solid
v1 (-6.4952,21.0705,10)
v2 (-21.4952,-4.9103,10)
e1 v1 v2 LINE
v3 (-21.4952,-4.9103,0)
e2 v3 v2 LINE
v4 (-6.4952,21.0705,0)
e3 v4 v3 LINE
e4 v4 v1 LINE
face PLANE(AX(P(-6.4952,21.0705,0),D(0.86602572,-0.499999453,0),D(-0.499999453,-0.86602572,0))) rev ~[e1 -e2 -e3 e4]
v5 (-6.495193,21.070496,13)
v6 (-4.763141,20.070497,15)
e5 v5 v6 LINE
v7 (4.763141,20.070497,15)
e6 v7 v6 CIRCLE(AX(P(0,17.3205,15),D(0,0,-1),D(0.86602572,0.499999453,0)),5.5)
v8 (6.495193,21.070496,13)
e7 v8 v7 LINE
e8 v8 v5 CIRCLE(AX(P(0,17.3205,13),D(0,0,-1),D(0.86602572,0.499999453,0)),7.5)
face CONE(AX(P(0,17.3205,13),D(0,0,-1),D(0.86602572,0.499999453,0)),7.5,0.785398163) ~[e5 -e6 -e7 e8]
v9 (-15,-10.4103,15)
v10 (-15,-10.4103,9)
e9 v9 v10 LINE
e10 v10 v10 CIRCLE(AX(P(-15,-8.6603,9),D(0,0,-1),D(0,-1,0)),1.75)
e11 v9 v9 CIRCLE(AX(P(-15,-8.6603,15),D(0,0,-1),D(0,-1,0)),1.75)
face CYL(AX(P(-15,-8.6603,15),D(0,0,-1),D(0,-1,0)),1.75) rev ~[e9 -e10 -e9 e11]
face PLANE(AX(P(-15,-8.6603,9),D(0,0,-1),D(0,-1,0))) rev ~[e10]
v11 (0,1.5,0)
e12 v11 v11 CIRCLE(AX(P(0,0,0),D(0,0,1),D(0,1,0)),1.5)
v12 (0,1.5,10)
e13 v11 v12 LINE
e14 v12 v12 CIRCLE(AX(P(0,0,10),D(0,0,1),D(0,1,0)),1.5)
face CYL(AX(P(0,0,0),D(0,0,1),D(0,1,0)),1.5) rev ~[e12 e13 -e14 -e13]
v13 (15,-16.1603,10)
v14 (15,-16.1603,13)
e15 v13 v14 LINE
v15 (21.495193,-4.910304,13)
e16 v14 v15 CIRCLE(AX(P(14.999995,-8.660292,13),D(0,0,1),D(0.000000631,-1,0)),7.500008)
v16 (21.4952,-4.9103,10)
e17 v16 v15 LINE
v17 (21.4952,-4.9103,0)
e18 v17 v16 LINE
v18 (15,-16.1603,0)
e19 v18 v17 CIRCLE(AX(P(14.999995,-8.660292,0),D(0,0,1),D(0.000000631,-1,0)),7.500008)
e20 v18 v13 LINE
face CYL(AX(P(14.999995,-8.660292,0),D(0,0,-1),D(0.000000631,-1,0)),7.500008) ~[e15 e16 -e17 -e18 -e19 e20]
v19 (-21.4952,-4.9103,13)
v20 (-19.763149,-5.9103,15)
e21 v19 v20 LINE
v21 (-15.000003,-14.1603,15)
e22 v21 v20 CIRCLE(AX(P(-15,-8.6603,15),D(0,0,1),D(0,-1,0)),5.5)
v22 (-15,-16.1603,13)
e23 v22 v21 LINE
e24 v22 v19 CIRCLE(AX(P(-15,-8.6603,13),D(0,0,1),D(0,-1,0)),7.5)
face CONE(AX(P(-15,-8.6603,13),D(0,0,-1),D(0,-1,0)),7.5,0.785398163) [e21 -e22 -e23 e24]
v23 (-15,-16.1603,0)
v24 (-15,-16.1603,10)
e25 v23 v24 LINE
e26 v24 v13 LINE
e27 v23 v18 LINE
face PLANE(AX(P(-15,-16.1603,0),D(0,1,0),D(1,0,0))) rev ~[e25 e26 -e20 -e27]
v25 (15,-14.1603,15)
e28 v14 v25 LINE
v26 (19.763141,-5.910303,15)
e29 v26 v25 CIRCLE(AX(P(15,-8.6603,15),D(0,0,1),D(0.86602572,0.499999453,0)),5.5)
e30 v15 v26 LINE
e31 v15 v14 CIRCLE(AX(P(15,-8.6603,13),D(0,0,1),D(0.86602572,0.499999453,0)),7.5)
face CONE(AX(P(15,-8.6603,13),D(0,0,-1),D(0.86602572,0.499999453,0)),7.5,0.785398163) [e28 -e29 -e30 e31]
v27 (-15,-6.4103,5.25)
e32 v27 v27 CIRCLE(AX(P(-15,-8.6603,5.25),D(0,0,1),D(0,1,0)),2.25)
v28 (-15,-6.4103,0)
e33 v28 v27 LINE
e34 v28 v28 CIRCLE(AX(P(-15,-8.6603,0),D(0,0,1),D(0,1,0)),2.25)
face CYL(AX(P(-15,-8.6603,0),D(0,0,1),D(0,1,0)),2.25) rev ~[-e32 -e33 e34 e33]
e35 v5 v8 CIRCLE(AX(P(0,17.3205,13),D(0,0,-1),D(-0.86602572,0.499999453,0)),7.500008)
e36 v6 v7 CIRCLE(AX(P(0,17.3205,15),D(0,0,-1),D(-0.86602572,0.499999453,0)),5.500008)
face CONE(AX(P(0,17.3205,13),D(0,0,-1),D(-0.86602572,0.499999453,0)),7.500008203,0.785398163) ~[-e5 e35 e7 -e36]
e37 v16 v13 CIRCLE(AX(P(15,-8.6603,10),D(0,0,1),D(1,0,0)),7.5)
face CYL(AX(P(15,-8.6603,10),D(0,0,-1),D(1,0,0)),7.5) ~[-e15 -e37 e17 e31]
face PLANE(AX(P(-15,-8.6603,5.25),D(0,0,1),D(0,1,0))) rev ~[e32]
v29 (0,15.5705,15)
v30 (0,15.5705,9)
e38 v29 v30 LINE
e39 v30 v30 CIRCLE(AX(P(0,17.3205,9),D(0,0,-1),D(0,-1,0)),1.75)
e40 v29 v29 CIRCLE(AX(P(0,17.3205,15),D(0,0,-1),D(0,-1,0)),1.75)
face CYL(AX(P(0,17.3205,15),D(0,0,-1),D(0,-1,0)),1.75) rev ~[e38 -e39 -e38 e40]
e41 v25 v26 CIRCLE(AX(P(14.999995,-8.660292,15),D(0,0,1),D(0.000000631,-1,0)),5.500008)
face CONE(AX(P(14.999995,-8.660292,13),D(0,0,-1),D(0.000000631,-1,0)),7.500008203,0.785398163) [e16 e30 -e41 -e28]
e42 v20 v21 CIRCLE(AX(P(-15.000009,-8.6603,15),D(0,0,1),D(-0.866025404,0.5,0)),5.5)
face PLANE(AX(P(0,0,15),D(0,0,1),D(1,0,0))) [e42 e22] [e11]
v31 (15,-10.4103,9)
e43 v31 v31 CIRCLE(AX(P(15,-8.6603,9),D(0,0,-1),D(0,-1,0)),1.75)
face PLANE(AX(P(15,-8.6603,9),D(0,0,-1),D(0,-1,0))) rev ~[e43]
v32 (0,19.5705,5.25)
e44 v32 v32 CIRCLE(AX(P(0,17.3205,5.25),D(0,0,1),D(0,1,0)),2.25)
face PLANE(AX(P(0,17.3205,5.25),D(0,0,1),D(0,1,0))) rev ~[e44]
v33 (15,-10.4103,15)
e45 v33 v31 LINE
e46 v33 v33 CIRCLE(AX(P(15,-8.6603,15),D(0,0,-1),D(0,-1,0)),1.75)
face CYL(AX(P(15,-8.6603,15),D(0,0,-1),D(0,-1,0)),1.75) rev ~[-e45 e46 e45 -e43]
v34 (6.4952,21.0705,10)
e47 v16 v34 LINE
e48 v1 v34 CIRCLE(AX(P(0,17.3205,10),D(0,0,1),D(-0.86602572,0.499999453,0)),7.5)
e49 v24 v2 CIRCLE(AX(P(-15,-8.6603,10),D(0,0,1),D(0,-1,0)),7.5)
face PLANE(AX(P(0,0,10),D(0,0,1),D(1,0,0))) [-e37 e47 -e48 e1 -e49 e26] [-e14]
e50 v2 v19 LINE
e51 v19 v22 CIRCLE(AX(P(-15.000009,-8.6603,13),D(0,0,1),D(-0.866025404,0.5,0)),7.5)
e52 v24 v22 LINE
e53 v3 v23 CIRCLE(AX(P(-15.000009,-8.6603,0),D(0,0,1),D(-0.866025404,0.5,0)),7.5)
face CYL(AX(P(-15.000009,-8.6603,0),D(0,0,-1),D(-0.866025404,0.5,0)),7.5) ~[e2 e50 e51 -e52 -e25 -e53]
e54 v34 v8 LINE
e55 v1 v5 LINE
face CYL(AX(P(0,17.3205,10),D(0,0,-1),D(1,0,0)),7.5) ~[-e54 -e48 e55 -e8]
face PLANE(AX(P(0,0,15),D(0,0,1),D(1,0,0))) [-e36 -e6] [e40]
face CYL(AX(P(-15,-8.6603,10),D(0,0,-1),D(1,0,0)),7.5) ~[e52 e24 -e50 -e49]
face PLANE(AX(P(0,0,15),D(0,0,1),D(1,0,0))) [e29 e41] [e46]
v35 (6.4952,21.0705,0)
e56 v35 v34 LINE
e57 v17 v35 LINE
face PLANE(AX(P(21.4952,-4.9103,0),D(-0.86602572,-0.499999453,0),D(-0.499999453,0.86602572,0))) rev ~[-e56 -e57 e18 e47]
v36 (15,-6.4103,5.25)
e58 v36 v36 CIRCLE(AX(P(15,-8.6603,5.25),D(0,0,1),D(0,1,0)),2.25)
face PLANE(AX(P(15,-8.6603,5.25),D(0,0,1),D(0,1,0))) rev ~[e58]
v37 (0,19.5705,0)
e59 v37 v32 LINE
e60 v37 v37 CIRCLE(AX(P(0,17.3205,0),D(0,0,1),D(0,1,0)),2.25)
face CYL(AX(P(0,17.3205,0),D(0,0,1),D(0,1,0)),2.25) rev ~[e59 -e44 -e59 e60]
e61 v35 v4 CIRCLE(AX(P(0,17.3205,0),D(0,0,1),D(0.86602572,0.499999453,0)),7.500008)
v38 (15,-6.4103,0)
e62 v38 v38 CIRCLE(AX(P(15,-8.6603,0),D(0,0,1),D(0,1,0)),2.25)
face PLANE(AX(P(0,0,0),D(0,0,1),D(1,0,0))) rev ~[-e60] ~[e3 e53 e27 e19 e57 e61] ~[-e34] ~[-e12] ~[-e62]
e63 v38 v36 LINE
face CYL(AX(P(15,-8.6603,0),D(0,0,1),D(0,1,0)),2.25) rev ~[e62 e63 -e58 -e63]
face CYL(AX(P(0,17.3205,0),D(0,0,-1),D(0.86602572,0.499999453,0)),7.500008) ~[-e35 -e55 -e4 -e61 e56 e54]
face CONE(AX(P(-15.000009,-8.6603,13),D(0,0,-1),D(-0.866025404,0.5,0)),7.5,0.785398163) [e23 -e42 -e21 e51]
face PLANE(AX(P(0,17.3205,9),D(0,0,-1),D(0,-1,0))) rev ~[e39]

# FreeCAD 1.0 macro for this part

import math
import FreeCAD as App
import Part
import Sketcher

V = App.Vector
Q = App.Units.Quantity


def edges_at(feature, points):
    """Names of the edges that pass closest to the given points."""
    edges = feature.Shape.Edges
    near = lambda p: min(range(len(edges)), key=lambda i: edges[i].distToShape(Part.Vertex(*p))[0])
    return sorted({f"Edge{near(p) + 1}" for p in points})

doc = App.newDocument("Part")
body = doc.addObject("PartDesign::Body", "Body")

# Sketch on XY plane
sketch1 = body.newObject("Sketcher::SketchObject", "Sketch")
sketch1.AttachmentSupport = (doc.getObject("XY_Plane"), [""])
sketch1.MapMode = "FlatFace"
sketch1.addGeometry(Part.ArcOfCircle(Part.Circle(V(-15, -8.6603, 0), V(0, 0, 1), 7.500008), math.radians(150.000036), math.radians(270)), False)
sketch1.addGeometry(Part.LineSegment(V(-15, -16.1603, 0), V(15, -16.1603, 0)), False)
sketch1.addGeometry(Part.ArcOfCircle(Part.Circle(V(15, -8.6603, 0), V(0, 0, 1), 7.5), math.radians(-90), math.radians(29.999964)), False)
sketch1.addGeometry(Part.LineSegment(V(21.4952, -4.9103, 0), V(6.4952, 21.0705, 0)), False)
sketch1.addGeometry(Part.ArcOfCircle(Part.Circle(V(0, 17.3205, 0), V(0, 0, 1), 7.500008), math.radians(29.999964), math.radians(150.000036)), False)
sketch1.addGeometry(Part.LineSegment(V(-6.4952, 21.0705, 0), V(-21.4952, -4.9103, 0)), False)
sketch1.addConstraint(Sketcher.Constraint("Tangent", 0, 2, 1, 1))
sketch1.addConstraint(Sketcher.Constraint("Tangent", 1, 2, 2, 1))
sketch1.addConstraint(Sketcher.Constraint("Tangent", 2, 2, 3, 1))
sketch1.addConstraint(Sketcher.Constraint("Tangent", 3, 2, 4, 1))
sketch1.addConstraint(Sketcher.Constraint("Tangent", 4, 2, 5, 1))
sketch1.addConstraint(Sketcher.Constraint("Tangent", 5, 2, 0, 1))
sketch1.addConstraint(Sketcher.Constraint("Horizontal", 1))
sketch1.addConstraint(Sketcher.Constraint("Equal", 0, 2))
sketch1.addConstraint(Sketcher.Constraint("Equal", 2, 4))
sketch1.addConstraint(Sketcher.Constraint("Symmetric", 3, 2, 4, 2, -2))
sketch1.addConstraint(Sketcher.Constraint("Radius", 0, 7.5))
sketch1.addConstraint(Sketcher.Constraint("DistanceX", 1, 1, 1, 2, 30.0))
sketch1.addConstraint(Sketcher.Constraint("Angle", 3, Q("120 deg")))
sketch1.addConstraint(Sketcher.Constraint("DistanceY", 0, 3, -1, 1, 8.6603))
pad1 = body.newObject("PartDesign::Pad", "Pad")
pad1.Profile = sketch1
pad1.Length = 10

# Sketch on XY plane
sketch2 = body.newObject("Sketcher::SketchObject", "Sketch001")
sketch2.AttachmentSupport = (doc.getObject("XY_Plane"), [""])
sketch2.MapMode = "FlatFace"
sketch2.addGeometry(Part.Circle(V(0, 17.3205, 0), V(0, 0, 1), 2.25), False)
sketch2.addGeometry(Part.Circle(V(15, -8.6603, 0), V(0, 0, 1), 2.25), False)
sketch2.addGeometry(Part.Circle(V(-15, -8.6603, 0), V(0, 0, 1), 2.25), False)
sketch2.addConstraint(Sketcher.Constraint("Equal", 0, 1))
sketch2.addConstraint(Sketcher.Constraint("Equal", 1, 2))
sketch2.addConstraint(Sketcher.Constraint("Symmetric", 1, 3, 2, 3, -2))
sketch2.addConstraint(Sketcher.Constraint("PointOnObject", 0, 3, -2))
sketch2.addConstraint(Sketcher.Constraint("Diameter", 0, 4.5))
sketch2.addConstraint(Sketcher.Constraint("DistanceX", -1, 1, 1, 3, 15.0))
sketch2.addConstraint(Sketcher.Constraint("DistanceY", -1, 1, 0, 3, 17.3205))
sketch2.addConstraint(Sketcher.Constraint("DistanceY", 1, 3, -1, 1, 8.6603))
doc.recompute()
hole = body.newObject("PartDesign::Hole", "Hole")
hole.Profile = sketch2
hole.ThreadType = "None"
hole.Diameter = 4.5
hole.DepthType = "Dimension"
hole.Depth = 5.25
hole.DrillPoint = "Flat"
hole.Reversed = True

# Sketch on XY plane
sketch3 = body.newObject("Sketcher::SketchObject", "Sketch002")
sketch3.AttachmentSupport = (doc.getObject("XY_Plane"), [""])
sketch3.MapMode = "FlatFace"
sketch3.addGeometry(Part.Circle(V(0, 0, 0), V(0, 0, 1), 1.5), False)
sketch3.addConstraint(Sketcher.Constraint("Coincident", 0, 3, -1, 1))
sketch3.addConstraint(Sketcher.Constraint("Diameter", 0, 3.0))
doc.recompute()
hole2 = body.newObject("PartDesign::Hole", "Hole001")
hole2.Profile = sketch3
hole2.ThreadType = "None"
hole2.Diameter = 3
hole2.DepthType = "ThroughAll"
hole2.Reversed = True

# Sketch on XY plane
sketch4 = body.newObject("Sketcher::SketchObject", "Sketch003")
sketch4.AttachmentSupport = (doc.getObject("XY_Plane"), [""])
sketch4.MapMode = "FlatFace"
sketch4.AttachmentOffset = App.Placement(V(0, 0, 10), App.Rotation())
sketch4.addGeometry(Part.ArcOfCircle(Part.Circle(V(15, -8.6603, 0), V(0, 0, 1), 7.5), math.radians(29.999964), math.radians(270)), False)
sketch4.addGeometry(Part.ArcOfCircle(Part.Circle(V(15, -8.6603, 0), V(0, 0, 1), 7.5), math.radians(-90), math.radians(29.999964)), False)
sketch4.addGeometry(Part.Circle(V(0, 17.3205, 0), V(0, 0, 1), 7.500008), False)
sketch4.addGeometry(Part.ArcOfCircle(Part.Circle(V(-15, -8.6603, 0), V(0, 0, 1), 7.5), math.radians(-90), math.radians(150.000036)), False)
sketch4.addGeometry(Part.ArcOfCircle(Part.Circle(V(-15, -8.6603, 0), V(0, 0, 1), 7.5), math.radians(150.000036), math.radians(270)), False)
sketch4.addConstraint(Sketcher.Constraint("Tangent", 0, 1, 1, 2))
sketch4.addConstraint(Sketcher.Constraint("Coincident", 1, 1, 0, 2))
sketch4.addConstraint(Sketcher.Constraint("Tangent", 3, 1, 4, 2))
sketch4.addConstraint(Sketcher.Constraint("Coincident", 4, 1, 3, 2))
sketch4.addConstraint(Sketcher.Constraint("Equal", 1, 2))
sketch4.addConstraint(Sketcher.Constraint("Equal", 2, 3))
sketch4.addConstraint(Sketcher.Constraint("Symmetric", 0, 3, 3, 3, -2))
sketch4.addConstraint(Sketcher.Constraint("PointOnObject", 2, 3, -2))
sketch4.addConstraint(Sketcher.Constraint("Horizontal", 0, 1, 4, 1))
sketch4.addConstraint(Sketcher.Constraint("Vertical", 0, 3, 1, 1))
sketch4.addConstraint(Sketcher.Constraint("Vertical", 4, 3, 3, 1))
sketch4.addConstraint(Sketcher.Constraint("Diameter", 2, 15.0))
sketch4.addConstraint(Sketcher.Constraint("DistanceX", -1, 1, 0, 3, 15.0))
sketch4.addConstraint(Sketcher.Constraint("DistanceY", 0, 3, 0, 1, 3.75))
sketch4.addConstraint(Sketcher.Constraint("DistanceY", 0, 3, -1, 1, 8.6603))
sketch4.addConstraint(Sketcher.Constraint("DistanceY", -1, 1, 2, 3, 17.3205))
pad2 = body.newObject("PartDesign::Pad", "Pad001")
pad2.Profile = sketch4
pad2.Length = 5
doc.recompute()

chamfer = body.newObject("PartDesign::Chamfer", "Chamfer")
chamfer.Base = (pad2, edges_at(pad2, [(-22.5, -8.66, 15), (-7.5, 17.32, 15), (7.5, -8.66, 15)]))
chamfer.Size = 2

# Sketch on XY plane
sketch5 = body.newObject("Sketcher::SketchObject", "Sketch004")
sketch5.AttachmentSupport = (doc.getObject("XY_Plane"), [""])
sketch5.MapMode = "FlatFace"
sketch5.AttachmentOffset = App.Placement(V(0, 0, 15), App.Rotation())
sketch5.addGeometry(Part.Circle(V(0, 17.3205, 0), V(0, 0, 1), 1.75), False)
sketch5.addConstraint(Sketcher.Constraint("PointOnObject", 0, 3, -2))
sketch5.addConstraint(Sketcher.Constraint("Diameter", 0, 3.5))
sketch5.addConstraint(Sketcher.Constraint("DistanceY", -1, 1, 0, 3, 17.3205))
doc.recompute()
hole3 = body.newObject("PartDesign::Hole", "Hole002")
hole3.Profile = sketch5
hole3.ThreadType = "None"
hole3.Diameter = 3.5
hole3.DepthType = "Dimension"
hole3.Depth = 6
hole3.DrillPoint = "Flat"

# Sketch on XY plane
sketch6 = body.newObject("Sketcher::SketchObject", "Sketch005")
sketch6.AttachmentSupport = (doc.getObject("XY_Plane"), [""])
sketch6.MapMode = "FlatFace"
sketch6.AttachmentOffset = App.Placement(V(0, 0, 15), App.Rotation())
sketch6.addGeometry(Part.Circle(V(15, -8.6603, 0), V(0, 0, 1), 1.75), False)
sketch6.addConstraint(Sketcher.Constraint("Diameter", 0, 3.5))
sketch6.addConstraint(Sketcher.Constraint("DistanceX", -1, 1, 0, 3, 15.0))
sketch6.addConstraint(Sketcher.Constraint("DistanceY", 0, 3, -1, 1, 8.6603))
doc.recompute()
hole4 = body.newObject("PartDesign::Hole", "Hole003")
hole4.Profile = sketch6
hole4.ThreadType = "None"
hole4.Diameter = 3.5
hole4.DepthType = "Dimension"
hole4.Depth = 6
hole4.DrillPoint = "Flat"

# Sketch on XY plane
sketch7 = body.newObject("Sketcher::SketchObject", "Sketch006")
sketch7.AttachmentSupport = (doc.getObject("XY_Plane"), [""])
sketch7.MapMode = "FlatFace"
sketch7.AttachmentOffset = App.Placement(V(0, 0, 15), App.Rotation())
sketch7.addGeometry(Part.Circle(V(-15, -8.6603, 0), V(0, 0, 1), 1.75), False)
sketch7.addConstraint(Sketcher.Constraint("Diameter", 0, 3.5))
sketch7.addConstraint(Sketcher.Constraint("DistanceX", 0, 3, -1, 1, 15.0))
sketch7.addConstraint(Sketcher.Constraint("DistanceY", 0, 3, -1, 1, 8.6603))
doc.recompute()
hole5 = body.newObject("PartDesign::Hole", "Hole004")
hole5.Profile = sketch7
hole5.ThreadType = "None"
hole5.Diameter = 3.5
hole5.DepthType = "Dimension"
hole5.Depth = 6
hole5.DrillPoint = "Flat"

doc.recompute()
